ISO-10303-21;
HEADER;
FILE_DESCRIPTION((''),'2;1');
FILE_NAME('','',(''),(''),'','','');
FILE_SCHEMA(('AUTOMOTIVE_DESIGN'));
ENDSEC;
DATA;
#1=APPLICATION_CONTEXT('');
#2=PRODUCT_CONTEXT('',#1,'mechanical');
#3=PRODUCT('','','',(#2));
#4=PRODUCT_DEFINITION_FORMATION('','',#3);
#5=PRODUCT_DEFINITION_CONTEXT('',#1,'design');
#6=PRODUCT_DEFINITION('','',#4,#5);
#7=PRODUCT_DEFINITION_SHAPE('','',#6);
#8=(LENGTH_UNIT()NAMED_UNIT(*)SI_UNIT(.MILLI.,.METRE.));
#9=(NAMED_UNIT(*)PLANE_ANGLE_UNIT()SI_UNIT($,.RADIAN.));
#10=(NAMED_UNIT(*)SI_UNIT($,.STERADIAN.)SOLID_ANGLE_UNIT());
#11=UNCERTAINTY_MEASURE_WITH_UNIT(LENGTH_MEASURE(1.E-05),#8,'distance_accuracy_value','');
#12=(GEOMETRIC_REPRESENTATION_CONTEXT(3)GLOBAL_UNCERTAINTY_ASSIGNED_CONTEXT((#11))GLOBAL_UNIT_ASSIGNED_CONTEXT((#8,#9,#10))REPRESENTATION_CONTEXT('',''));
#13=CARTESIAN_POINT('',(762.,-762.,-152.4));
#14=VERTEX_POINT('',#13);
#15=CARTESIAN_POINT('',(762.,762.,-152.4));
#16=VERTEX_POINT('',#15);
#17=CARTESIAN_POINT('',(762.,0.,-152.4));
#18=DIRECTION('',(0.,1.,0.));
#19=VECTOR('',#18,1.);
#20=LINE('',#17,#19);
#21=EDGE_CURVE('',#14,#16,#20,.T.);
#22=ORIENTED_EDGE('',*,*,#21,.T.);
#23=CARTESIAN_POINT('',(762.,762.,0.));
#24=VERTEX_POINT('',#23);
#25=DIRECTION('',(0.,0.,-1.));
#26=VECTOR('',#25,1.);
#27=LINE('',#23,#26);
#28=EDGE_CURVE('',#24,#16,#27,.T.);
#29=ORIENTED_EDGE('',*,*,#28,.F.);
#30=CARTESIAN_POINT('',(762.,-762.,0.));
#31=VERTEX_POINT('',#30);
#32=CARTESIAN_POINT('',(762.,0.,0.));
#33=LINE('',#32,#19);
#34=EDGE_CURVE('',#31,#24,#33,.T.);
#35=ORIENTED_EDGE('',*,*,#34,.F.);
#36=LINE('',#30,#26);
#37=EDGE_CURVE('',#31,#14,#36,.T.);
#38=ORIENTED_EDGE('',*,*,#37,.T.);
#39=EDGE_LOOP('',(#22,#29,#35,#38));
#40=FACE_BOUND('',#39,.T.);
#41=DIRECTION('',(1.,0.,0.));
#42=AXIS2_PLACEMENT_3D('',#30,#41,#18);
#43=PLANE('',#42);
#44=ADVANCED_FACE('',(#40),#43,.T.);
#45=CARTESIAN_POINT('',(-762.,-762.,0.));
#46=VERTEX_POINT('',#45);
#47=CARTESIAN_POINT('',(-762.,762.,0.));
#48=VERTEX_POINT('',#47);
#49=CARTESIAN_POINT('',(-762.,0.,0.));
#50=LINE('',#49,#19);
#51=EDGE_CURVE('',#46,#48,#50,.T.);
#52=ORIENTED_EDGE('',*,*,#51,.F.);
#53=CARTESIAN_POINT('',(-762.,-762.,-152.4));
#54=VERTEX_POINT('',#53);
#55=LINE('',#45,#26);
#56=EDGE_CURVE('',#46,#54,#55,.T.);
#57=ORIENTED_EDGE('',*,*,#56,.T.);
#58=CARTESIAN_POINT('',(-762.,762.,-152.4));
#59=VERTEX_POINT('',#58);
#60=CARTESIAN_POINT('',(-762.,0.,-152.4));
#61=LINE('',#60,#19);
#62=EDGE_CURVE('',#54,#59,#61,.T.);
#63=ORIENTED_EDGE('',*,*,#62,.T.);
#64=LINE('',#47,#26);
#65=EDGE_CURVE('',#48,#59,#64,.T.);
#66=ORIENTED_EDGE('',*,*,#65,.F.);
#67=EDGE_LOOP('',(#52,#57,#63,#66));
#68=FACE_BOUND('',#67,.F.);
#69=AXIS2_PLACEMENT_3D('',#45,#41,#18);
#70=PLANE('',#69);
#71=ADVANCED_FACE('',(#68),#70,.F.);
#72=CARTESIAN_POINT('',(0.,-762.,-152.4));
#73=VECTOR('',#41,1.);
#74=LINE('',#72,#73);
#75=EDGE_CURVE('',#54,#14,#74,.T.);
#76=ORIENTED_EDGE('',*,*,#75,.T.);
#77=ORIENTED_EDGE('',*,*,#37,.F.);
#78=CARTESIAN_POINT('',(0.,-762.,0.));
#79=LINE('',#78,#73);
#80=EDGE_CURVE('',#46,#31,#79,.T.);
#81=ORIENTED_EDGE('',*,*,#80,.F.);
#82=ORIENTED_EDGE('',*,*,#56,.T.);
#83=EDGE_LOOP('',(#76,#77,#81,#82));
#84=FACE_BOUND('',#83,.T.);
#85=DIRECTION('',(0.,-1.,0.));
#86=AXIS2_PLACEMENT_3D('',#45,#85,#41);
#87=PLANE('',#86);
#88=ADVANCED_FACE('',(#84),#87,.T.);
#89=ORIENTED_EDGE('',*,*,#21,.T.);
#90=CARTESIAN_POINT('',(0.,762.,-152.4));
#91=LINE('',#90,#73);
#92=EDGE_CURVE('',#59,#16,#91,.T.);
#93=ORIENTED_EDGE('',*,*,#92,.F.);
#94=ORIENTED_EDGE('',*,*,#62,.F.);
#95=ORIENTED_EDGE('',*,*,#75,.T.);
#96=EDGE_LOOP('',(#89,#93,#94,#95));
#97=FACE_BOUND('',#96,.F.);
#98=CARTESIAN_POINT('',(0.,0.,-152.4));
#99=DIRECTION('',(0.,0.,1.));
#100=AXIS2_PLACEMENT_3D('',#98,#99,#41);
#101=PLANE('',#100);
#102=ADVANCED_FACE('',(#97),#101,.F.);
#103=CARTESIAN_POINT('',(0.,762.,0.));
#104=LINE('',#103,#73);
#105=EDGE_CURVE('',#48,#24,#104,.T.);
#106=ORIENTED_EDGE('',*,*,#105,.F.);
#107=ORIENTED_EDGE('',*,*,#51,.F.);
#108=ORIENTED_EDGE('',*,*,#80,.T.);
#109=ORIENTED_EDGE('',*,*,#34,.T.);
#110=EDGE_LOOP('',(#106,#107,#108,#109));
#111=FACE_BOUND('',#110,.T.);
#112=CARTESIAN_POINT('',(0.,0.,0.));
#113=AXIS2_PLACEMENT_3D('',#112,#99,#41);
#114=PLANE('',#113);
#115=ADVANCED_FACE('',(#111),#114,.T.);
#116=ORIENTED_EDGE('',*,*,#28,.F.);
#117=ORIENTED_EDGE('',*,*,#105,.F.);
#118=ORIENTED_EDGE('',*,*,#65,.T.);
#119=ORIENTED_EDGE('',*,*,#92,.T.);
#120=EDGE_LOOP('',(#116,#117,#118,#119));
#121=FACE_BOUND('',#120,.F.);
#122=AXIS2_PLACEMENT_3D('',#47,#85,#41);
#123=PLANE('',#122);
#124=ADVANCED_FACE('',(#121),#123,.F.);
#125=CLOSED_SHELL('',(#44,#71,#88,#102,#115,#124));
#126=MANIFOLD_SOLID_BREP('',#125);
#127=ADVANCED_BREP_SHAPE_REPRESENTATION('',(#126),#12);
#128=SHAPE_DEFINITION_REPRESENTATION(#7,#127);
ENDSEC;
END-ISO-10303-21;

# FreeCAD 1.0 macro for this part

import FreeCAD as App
import Part
import Sketcher
from FreeCAD import Vector
Q = App.Units.Quantity


def add_polygon(sketch, points):
    """Adds a closed chain of lines whose ends are joined by coincident constraints."""
    first, n = sketch.GeometryCount, len(points)
    for a, b in zip(points, points[1:] + points[:1]):
        sketch.addGeometry(Part.LineSegment(App.Vector(*a, 0), App.Vector(*b, 0)), False)
    for i in range(n):
        sketch.addConstraint(Sketcher.Constraint("Coincident", first + i, 2, first + (i + 1) % n, 1))

doc = App.newDocument("Part")
params = doc.addObject("Spreadsheet::Sheet", "Params")
for row, (alias, value) in enumerate([
    ("sketch1_width", "60 in"),
    ("pad1_length", "6 in"),
    ("sketch2_diameter", "7 in"),
    ("pocket1_length", "0.1 in"),
], start=1):
    params.set(f"A{row}", alias)
    params.set(f"B{row}", "=" + value)
    params.setAlias(f"B{row}", alias)

body = doc.addObject("PartDesign::Body", "Body")

sketch1 = body.newObject("Sketcher::SketchObject", "Sketch")
sketch1.AttachmentSupport = (doc.getObject("XY_Plane"), [""])
sketch1.MapMode = "FlatFace"
add_polygon(sketch1, [(-762, 762), (-762, -762), (762, -762), (762, 762)])
sketch1.addConstraint([
    Sketcher.Constraint("Vertical", 0),
    Sketcher.Constraint("Horizontal", 1),
    Sketcher.Constraint("Vertical", 2),
    Sketcher.Constraint("Horizontal", 3),
    Sketcher.Constraint("Symmetric", 0, 2, 2, 2, -1, 1),
    Sketcher.Constraint("Equal", 3, 0),
    Sketcher.Constraint("DistanceX", 1, 1, 1, 2, Q("60 in")),
])
sketch1.setExpression("Constraints[10]", "Params.sketch1_width")
pad1 = body.newObject("PartDesign::Pad", "Pad")
pad1.Profile = sketch1
pad1.setExpression("Length", "Params.pad1_length")
pad1.Reversed = True

sketch2 = body.newObject("Sketcher::SketchObject", "Sketch001")
sketch2.AttachmentSupport = (doc.getObject("XY_Plane"), [""])
sketch2.MapMode = "FlatFace"
sketch2.addGeometry(Part.Circle(Vector(-1321, 0, 0), Vector(0, 0, 1), 89), False)
sketch2.addConstraint([
    Sketcher.Constraint("PointOnObject", 0, 3, -1),
    Sketcher.Constraint("Diameter", 0, Q("7 in")),
    Sketcher.Constraint("DistanceX", 0, 3, -1, 1, Q("52 in")),
])
sketch2.setExpression("Constraints[1]", "Params.sketch2_diameter")
pocket1 = body.newObject("PartDesign::Pocket", "Pocket")
pocket1.Profile = sketch2
pocket1.setExpression("Length", "Params.pocket1_length")

doc.recompute()
